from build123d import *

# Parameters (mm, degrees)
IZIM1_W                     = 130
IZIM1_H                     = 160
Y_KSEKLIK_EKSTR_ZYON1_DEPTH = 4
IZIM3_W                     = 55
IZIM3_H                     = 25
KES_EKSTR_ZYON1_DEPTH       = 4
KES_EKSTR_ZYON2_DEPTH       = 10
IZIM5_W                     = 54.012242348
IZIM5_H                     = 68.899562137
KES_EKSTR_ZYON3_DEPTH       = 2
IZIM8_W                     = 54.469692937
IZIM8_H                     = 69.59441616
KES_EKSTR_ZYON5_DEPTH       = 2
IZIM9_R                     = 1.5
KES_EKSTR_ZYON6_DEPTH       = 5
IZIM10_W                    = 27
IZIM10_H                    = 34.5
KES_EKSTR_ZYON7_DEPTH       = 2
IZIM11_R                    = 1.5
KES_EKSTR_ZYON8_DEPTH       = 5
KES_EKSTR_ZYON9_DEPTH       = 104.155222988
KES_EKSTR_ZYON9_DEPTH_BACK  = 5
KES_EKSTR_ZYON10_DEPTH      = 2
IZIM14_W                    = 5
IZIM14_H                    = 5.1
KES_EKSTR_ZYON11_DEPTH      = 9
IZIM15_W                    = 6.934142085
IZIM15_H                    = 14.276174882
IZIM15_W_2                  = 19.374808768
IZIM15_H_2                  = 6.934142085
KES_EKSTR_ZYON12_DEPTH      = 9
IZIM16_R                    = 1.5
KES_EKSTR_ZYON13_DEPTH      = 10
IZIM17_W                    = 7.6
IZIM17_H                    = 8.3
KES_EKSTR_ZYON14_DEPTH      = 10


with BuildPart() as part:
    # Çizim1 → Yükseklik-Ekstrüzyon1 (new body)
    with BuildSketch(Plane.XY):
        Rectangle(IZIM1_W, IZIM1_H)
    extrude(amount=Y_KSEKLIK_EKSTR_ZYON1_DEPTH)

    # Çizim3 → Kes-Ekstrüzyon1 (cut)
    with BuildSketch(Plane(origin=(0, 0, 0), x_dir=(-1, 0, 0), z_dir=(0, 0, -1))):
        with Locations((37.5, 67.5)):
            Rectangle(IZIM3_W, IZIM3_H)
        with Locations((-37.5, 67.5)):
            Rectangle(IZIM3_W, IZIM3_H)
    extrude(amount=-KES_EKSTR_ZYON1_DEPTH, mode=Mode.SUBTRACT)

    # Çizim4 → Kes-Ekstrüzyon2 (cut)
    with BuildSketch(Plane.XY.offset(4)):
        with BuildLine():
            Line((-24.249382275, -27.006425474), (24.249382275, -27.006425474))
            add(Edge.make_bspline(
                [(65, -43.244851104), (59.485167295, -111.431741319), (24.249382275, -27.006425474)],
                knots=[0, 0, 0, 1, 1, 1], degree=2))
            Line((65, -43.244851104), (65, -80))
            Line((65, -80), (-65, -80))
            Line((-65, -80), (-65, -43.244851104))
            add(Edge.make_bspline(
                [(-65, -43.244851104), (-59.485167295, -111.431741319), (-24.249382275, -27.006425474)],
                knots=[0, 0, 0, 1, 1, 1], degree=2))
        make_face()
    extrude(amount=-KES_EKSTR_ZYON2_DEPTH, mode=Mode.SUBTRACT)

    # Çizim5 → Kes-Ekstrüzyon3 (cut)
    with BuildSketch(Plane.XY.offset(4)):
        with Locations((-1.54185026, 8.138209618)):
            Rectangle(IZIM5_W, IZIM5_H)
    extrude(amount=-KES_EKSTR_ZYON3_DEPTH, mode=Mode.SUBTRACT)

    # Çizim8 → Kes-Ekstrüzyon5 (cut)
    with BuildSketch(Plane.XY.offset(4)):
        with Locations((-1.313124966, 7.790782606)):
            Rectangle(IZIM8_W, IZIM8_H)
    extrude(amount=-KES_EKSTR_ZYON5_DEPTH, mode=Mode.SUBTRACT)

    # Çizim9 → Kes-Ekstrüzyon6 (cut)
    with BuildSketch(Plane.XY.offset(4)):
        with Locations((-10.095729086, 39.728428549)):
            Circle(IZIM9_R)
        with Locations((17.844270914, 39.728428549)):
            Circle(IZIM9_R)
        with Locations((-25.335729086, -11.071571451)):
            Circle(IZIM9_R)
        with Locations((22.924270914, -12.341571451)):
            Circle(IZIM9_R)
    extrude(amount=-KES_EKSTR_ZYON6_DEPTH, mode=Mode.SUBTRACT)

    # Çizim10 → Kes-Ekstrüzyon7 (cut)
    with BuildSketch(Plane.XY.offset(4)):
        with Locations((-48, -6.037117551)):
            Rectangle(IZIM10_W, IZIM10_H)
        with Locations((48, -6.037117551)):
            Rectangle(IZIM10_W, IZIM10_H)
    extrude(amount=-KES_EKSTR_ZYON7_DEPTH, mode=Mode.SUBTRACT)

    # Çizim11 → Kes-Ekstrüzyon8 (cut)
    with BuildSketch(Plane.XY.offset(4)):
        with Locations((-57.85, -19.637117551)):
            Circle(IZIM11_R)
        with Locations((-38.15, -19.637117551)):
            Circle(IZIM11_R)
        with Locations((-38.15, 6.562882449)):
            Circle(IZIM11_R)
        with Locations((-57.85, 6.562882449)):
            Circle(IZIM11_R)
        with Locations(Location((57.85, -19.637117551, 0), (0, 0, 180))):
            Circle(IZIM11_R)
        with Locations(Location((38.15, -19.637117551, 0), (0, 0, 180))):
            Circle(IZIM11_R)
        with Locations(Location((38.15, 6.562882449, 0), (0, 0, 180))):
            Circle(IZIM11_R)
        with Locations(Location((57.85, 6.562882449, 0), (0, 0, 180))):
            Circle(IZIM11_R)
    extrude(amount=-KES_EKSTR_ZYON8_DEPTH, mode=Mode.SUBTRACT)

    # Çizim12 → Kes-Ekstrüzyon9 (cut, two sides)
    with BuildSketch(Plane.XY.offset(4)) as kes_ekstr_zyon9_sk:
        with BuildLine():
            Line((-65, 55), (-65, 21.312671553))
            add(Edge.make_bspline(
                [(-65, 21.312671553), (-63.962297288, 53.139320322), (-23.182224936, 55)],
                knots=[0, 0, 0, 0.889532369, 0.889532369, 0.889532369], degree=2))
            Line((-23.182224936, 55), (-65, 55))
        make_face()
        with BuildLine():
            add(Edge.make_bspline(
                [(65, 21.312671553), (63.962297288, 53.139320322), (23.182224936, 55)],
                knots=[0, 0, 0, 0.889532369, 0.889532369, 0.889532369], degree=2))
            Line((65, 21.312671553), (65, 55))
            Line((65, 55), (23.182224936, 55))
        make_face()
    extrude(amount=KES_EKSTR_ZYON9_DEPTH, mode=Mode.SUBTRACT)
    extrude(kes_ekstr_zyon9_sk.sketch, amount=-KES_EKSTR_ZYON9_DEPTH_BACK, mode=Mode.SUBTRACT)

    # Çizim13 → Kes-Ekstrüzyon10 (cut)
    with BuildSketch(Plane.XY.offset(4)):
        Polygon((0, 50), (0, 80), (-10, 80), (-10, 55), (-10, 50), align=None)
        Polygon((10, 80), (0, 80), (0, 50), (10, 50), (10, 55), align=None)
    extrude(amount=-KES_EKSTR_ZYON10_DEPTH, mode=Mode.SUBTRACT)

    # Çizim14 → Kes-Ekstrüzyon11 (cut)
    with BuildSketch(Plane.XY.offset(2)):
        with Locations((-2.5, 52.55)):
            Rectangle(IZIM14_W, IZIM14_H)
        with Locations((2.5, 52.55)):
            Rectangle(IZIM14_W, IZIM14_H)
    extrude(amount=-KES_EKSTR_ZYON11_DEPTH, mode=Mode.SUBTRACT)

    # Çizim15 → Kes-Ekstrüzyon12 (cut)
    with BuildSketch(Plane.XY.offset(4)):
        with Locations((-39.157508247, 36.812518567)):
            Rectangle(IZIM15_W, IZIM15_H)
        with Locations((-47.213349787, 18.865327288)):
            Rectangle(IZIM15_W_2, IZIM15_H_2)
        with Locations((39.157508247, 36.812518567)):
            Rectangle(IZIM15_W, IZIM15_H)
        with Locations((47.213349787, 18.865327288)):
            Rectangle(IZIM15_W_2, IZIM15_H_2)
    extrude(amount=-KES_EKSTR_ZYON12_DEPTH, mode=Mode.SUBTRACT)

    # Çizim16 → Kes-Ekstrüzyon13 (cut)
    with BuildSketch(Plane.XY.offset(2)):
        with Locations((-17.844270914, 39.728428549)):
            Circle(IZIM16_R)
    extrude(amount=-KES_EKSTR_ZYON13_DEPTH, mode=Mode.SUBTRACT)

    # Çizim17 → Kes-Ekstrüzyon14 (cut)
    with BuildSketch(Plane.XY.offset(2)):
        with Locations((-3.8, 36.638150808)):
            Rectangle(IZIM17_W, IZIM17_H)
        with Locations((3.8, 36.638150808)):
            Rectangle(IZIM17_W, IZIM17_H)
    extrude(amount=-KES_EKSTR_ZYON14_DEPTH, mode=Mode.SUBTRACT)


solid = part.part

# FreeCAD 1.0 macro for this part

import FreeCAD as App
import Part
import Sketcher
from FreeCAD import Vector


def add_polygon(sketch, points):
    """Adds a closed chain of lines whose ends are joined by coincident constraints."""
    first, n = sketch.GeometryCount, len(points)
    for a, b in zip(points, points[1:] + points[:1]):
        sketch.addGeometry(Part.LineSegment(App.Vector(*a, 0), App.Vector(*b, 0)), False)
    for i in range(n):
        sketch.addConstraint(Sketcher.Constraint("Coincident", first + i, 2, first + (i + 1) % n, 1))

doc = App.newDocument("Part")
body = doc.addObject("PartDesign::Body", "Body")

# Sketch on XY plane
sketch1 = body.newObject("Sketcher::SketchObject", "Sketch")
sketch1.AttachmentSupport = (doc.getObject("XY_Plane"), [""])
sketch1.MapMode = "FlatFace"
add_polygon(sketch1, [(-65, 80), (-65, -80), (65, -80), (65, 80)])  # lines 0-3
sketch1.addConstraint([
    Sketcher.Constraint("Vertical", 0),
    Sketcher.Constraint("Horizontal", 1),
    Sketcher.Constraint("Vertical", 2),
    Sketcher.Constraint("Horizontal", 3),
    Sketcher.Constraint("Symmetric", 0, 2, 2, 2, -1, 1),
    Sketcher.Constraint("DistanceX", 1, 1, 1, 2, 130.0),
    Sketcher.Constraint("DistanceY", 0, 2, 0, 1, 160.0),
])
pad1 = body.newObject("PartDesign::Pad", "Pad")
pad1.Profile = sketch1
pad1.Length = 4

# Sketch on XY plane
sketch2 = body.newObject("Sketcher::SketchObject", "Sketch001")
sketch2.AttachmentSupport = (doc.getObject("XY_Plane"), [""])
sketch2.MapMode = "FlatFace"
add_polygon(sketch2, [(-10, 80), (-10, 55), (-65, 55), (-65, 80)])  # lines 0-3
add_polygon(sketch2, [(65, 80), (65, 55), (10, 55), (10, 80)])  # lines 4-7
sketch2.addConstraint([
    Sketcher.Constraint("Vertical", 0),
    Sketcher.Constraint("Horizontal", 1),
    Sketcher.Constraint("Vertical", 2),
    Sketcher.Constraint("Horizontal", 3),
    Sketcher.Constraint("Vertical", 4),
    Sketcher.Constraint("Horizontal", 5),
    Sketcher.Constraint("Vertical", 6),
    Sketcher.Constraint("Horizontal", 7),
    Sketcher.Constraint("Symmetric", 1, 2, 4, 2, -2),
    Sketcher.Constraint("Symmetric", 3, 2, 6, 2, -2),
    Sketcher.Constraint("DistanceX", 1, 2, 1, 1, 55.0),
    Sketcher.Constraint("DistanceY", 0, 2, 0, 1, 25.0),
    Sketcher.Constraint("DistanceX", 0, 2, -1, 1, 10.0),
    Sketcher.Constraint("DistanceY", -1, 1, 0, 2, 55.0),
])
pocket1 = body.newObject("PartDesign::Pocket", "Pocket")
pocket1.Profile = sketch2
pocket1.Length = 4
pocket1.Reversed = True

# Sketch on XY plane
sketch3 = body.newObject("Sketcher::SketchObject", "Sketch002")
sketch3.AttachmentSupport = (doc.getObject("XY_Plane"), [""])
sketch3.MapMode = "FlatFace"
sketch3.AttachmentOffset = App.Placement(Vector(0, 0, 4), App.Rotation())
sketch3.addGeometry([
    Part.LineSegment(Vector(24.249382, -27.006425, 0), Vector(-24.249382, -27.006425, 0)),  # 0
    Part.BSplineCurve([Vector(-65, -43.244851, 0), Vector(-59.485167, -111.431741, 0), Vector(-24.249382, -27.006425, 0)], [3, 3], [0, 1], False, 2, [1, 1, 1], False),  # 1
    Part.LineSegment(Vector(-65, -43.244851, 0), Vector(-65, -80, 0)),  # 2
    Part.LineSegment(Vector(-65, -80, 0), Vector(65, -80, 0)),  # 3
    Part.LineSegment(Vector(65, -80, 0), Vector(65, -43.244851, 0)),  # 4
    Part.BSplineCurve([Vector(65, -43.244851, 0), Vector(59.485167, -111.431741, 0), Vector(24.249382, -27.006425, 0)], [3, 3], [0, 1], False, 2, [1, 1, 1], False),  # 5
], False)
sketch3.addConstraint([
    Sketcher.Constraint("Block", 1),
    Sketcher.Constraint("Block", 5),
    Sketcher.Constraint("Coincident", 0, 2, 1, 2),
    Sketcher.Constraint("Coincident", 1, 1, 2, 1),
    Sketcher.Constraint("Coincident", 2, 2, 3, 1),
    Sketcher.Constraint("Coincident", 3, 2, 4, 1),
    Sketcher.Constraint("Coincident", 4, 2, 5, 1),
    Sketcher.Constraint("Coincident", 5, 2, 0, 1),
    Sketcher.Constraint("Vertical", 2),
    Sketcher.Constraint("Horizontal", 3),
    Sketcher.Constraint("Vertical", 4),
    Sketcher.Constraint("DistanceY", 2, 2, -1, 1, 80.0),
])
pocket2 = body.newObject("PartDesign::Pocket", "Pocket001")
pocket2.Profile = sketch3
pocket2.Length = 10

# Sketch on XY plane
sketch4 = body.newObject("Sketcher::SketchObject", "Sketch003")
sketch4.AttachmentSupport = (doc.getObject("XY_Plane"), [""])
sketch4.MapMode = "FlatFace"
sketch4.AttachmentOffset = App.Placement(Vector(0, 0, 4), App.Rotation())
add_polygon(sketch4, [(-29, 43), (-29, -26), (25, -26), (25, 43)])  # lines 0-3
sketch4.addConstraint([
    Sketcher.Constraint("Vertical", 0),
    Sketcher.Constraint("Horizontal", 1),
    Sketcher.Constraint("Vertical", 2),
    Sketcher.Constraint("Horizontal", 3),
    Sketcher.Constraint("DistanceX", 1, 1, 1, 2, 54.012242),
    Sketcher.Constraint("DistanceY", 0, 2, 0, 1, 68.899562),
    Sketcher.Constraint("DistanceX", 0, 2, -1, 1, 28.547971),
    Sketcher.Constraint("DistanceY", 0, 2, -1, 1, 26.311571),
])
pocket3 = body.newObject("PartDesign::Pocket", "Pocket002")
pocket3.Profile = sketch4
pocket3.Length = 2

# Sketch on XY plane
sketch5 = body.newObject("Sketcher::SketchObject", "Sketch004")
sketch5.AttachmentSupport = (doc.getObject("XY_Plane"), [""])
sketch5.MapMode = "FlatFace"
sketch5.AttachmentOffset = App.Placement(Vector(0, 0, 4), App.Rotation())
add_polygon(sketch5, [(-29, 43), (-29, -27), (26, -27), (26, 43)])  # lines 0-3
sketch5.addConstraint([
    Sketcher.Constraint("Vertical", 0),
    Sketcher.Constraint("Horizontal", 1),
    Sketcher.Constraint("Vertical", 2),
    Sketcher.Constraint("Horizontal", 3),
    Sketcher.Constraint("DistanceX", 1, 1, 1, 2, 54.469693),
    Sketcher.Constraint("DistanceY", 0, 2, 0, 1, 69.594416),
    Sketcher.Constraint("DistanceX", 0, 2, -1, 1, 28.547971),
    Sketcher.Constraint("DistanceY", -1, 1, 2, 2, 42.587991),
])
pocket4 = body.newObject("PartDesign::Pocket", "Pocket003")
pocket4.Profile = sketch5
pocket4.Length = 2

# Sketch on XY plane
sketch6 = body.newObject("Sketcher::SketchObject", "Sketch005")
sketch6.AttachmentSupport = (doc.getObject("XY_Plane"), [""])
sketch6.MapMode = "FlatFace"
sketch6.AttachmentOffset = App.Placement(Vector(0, 0, 4), App.Rotation())
sketch6.addGeometry([
    Part.Circle(Vector(-10.1, 39.7, 0), Vector(0, 0, 1), 1.5),
    Part.Circle(Vector(17.8, 39.7, 0), Vector(0, 0, 1), 1.5),
    Part.Circle(Vector(-25.3, -11.1, 0), Vector(0, 0, 1), 1.5),
    Part.Circle(Vector(22.9, -12.3, 0), Vector(0, 0, 1), 1.5),
], False)
sketch6.addConstraint([
    Sketcher.Constraint("Equal", 0, 1),
    Sketcher.Constraint("Equal", 1, 2),
    Sketcher.Constraint("Equal", 2, 3),
    Sketcher.Constraint("Horizontal", 0, 3, 1, 3),
    Sketcher.Constraint("Diameter", 0, 3.0),
    Sketcher.Constraint("DistanceY", 2, 3, 0, 3, 50.8),
    Sketcher.Constraint("DistanceX", 0, 3, 1, 3, 27.94),
    Sketcher.Constraint("DistanceX", 2, 3, 0, 3, 15.24),
    Sketcher.Constraint("DistanceX", 2, 3, 3, 3, 48.26),
    Sketcher.Constraint("DistanceY", 3, 3, 2, 3, 1.27),
    Sketcher.Constraint("DistanceX", 0, 3, -1, 1, 10.095729),
    Sketcher.Constraint("DistanceY", -1, 1, 0, 3, 39.728429),
])
pocket5 = body.newObject("PartDesign::Pocket", "Pocket004")
pocket5.Profile = sketch6
pocket5.Length = 5

# Sketch on XY plane
sketch7 = body.newObject("Sketcher::SketchObject", "Sketch006")
sketch7.AttachmentSupport = (doc.getObject("XY_Plane"), [""])
sketch7.MapMode = "FlatFace"
sketch7.AttachmentOffset = App.Placement(Vector(0, 0, 4), App.Rotation())
add_polygon(sketch7, [(-62, 11), (-62, -23), (-34, -23), (-34, 11)])  # lines 0-3
add_polygon(sketch7, [(34, 11), (34, -23), (62, -23), (62, 11)])  # lines 4-7
sketch7.addConstraint([
    Sketcher.Constraint("Vertical", 0),
    Sketcher.Constraint("Horizontal", 1),
    Sketcher.Constraint("Vertical", 2),
    Sketcher.Constraint("Horizontal", 3),
    Sketcher.Constraint("Vertical", 4),
    Sketcher.Constraint("Horizontal", 5),
    Sketcher.Constraint("Vertical", 6),
    Sketcher.Constraint("Horizontal", 7),
    Sketcher.Constraint("Symmetric", 1, 2, 4, 2, -2),
    Sketcher.Constraint("Symmetric", 3, 2, 6, 2, -2),
    Sketcher.Constraint("DistanceX", 1, 1, 1, 2, 27.0),
    Sketcher.Constraint("DistanceY", 0, 2, 0, 1, 34.5),
    Sketcher.Constraint("DistanceX", 1, 2, 4, 2, 69.0),
    Sketcher.Constraint("DistanceY", 0, 2, -1, 1, 23.287118),
])
pocket6 = body.newObject("PartDesign::Pocket", "Pocket005")
pocket6.Profile = sketch7
pocket6.Length = 2

# Sketch on XY plane
sketch8 = body.newObject("Sketcher::SketchObject", "Sketch007")
sketch8.AttachmentSupport = (doc.getObject("XY_Plane"), [""])
sketch8.MapMode = "FlatFace"
sketch8.AttachmentOffset = App.Placement(Vector(0, 0, 4), App.Rotation())
sketch8.addGeometry([
    Part.Circle(Vector(-57.9, -19.6, 0), Vector(0, 0, 1), 1.5),  # 0
    Part.Circle(Vector(-38.1, -19.6, 0), Vector(0, 0, 1), 1.5),  # 1
    Part.Circle(Vector(-38.1, 6.6, 0), Vector(0, 0, 1), 1.5),  # 2
    Part.Circle(Vector(-57.9, 6.6, 0), Vector(0, 0, 1), 1.5),  # 3
    Part.Circle(Vector(57.9, -19.6, 0), Vector(0, 0, 1), 1.5),  # 4
    Part.Circle(Vector(38.1, -19.6, 0), Vector(0, 0, 1), 1.5),  # 5
    Part.Circle(Vector(38.1, 6.6, 0), Vector(0, 0, 1), 1.5),  # 6
    Part.Circle(Vector(57.9, 6.6, 0), Vector(0, 0, 1), 1.5),  # 7
], False)
sketch8.addConstraint([
    Sketcher.Constraint("Equal", 0, 1),
    Sketcher.Constraint("Equal", 1, 2),
    Sketcher.Constraint("Equal", 2, 3),
    Sketcher.Constraint("Equal", 3, 4),
    Sketcher.Constraint("Equal", 4, 5),
    Sketcher.Constraint("Equal", 5, 6),
    Sketcher.Constraint("Equal", 6, 7),
    Sketcher.Constraint("Symmetric", 0, 3, 4, 3, -2),
    Sketcher.Constraint("Symmetric", 1, 3, 5, 3, -2),
    Sketcher.Constraint("Symmetric", 2, 3, 6, 3, -2),
    Sketcher.Constraint("Symmetric", 3, 3, 7, 3, -2),
    Sketcher.Constraint("Horizontal", 0, 3, 1, 3),
    Sketcher.Constraint("Horizontal", 2, 3, 3, 3),
    Sketcher.Constraint("Vertical", 1, 3, 2, 3),
    Sketcher.Constraint("Vertical", 0, 3, 3, 3),
    Sketcher.Constraint("Diameter", 0, 3.0),
    Sketcher.Constraint("DistanceX", 1, 3, 4, 3, 96.0),
    Sketcher.Constraint("DistanceX", 0, 3, 1, 3, 19.7),
    Sketcher.Constraint("DistanceY", 1, 3, 2, 3, 26.2),
    Sketcher.Constraint("DistanceY", 0, 3, -1, 1, 19.637118),
])
pocket7 = body.newObject("PartDesign::Pocket", "Pocket006")
pocket7.Profile = sketch8
pocket7.Length = 5

# Sketch on XY plane
sketch9 = body.newObject("Sketcher::SketchObject", "Sketch008")
sketch9.AttachmentSupport = (doc.getObject("XY_Plane"), [""])
sketch9.MapMode = "FlatFace"
sketch9.AttachmentOffset = App.Placement(Vector(0, 0, 4), App.Rotation())
sketch9.addGeometry([
    Part.LineSegment(Vector(-65, 55, 0), Vector(-65, 21.312672, 0)),  # 0
    Part.BSplineCurve([Vector(-65, 21.312672, 0), Vector(-63.962297, 53.13932, 0), Vector(-23.182225, 55, 0)], [3, 3], [0, 0.889532369], False, 2, [1, 1, 1], False),  # 1
    Part.LineSegment(Vector(-23.182225, 55, 0), Vector(-65, 55, 0)),  # 2
    Part.BSplineCurve([Vector(65, 21.312672, 0), Vector(63.962297, 53.13932, 0), Vector(23.182225, 55, 0)], [3, 3], [0, 0.889532369], False, 2, [1, 1, 1], False),  # 3
    Part.LineSegment(Vector(65, 21.312672, 0), Vector(65, 55, 0)),  # 4
    Part.LineSegment(Vector(65, 55, 0), Vector(23.182225, 55, 0)),  # 5
], False)
sketch9.addConstraint([
    Sketcher.Constraint("Block", 1),
    Sketcher.Constraint("Block", 3),
    Sketcher.Constraint("Coincident", 0, 2, 1, 1),
    Sketcher.Constraint("Coincident", 1, 2, 2, 1),
    Sketcher.Constraint("Coincident", 2, 2, 0, 1),
    Sketcher.Constraint("Coincident", 3, 1, 4, 1),
    Sketcher.Constraint("Coincident", 4, 2, 5, 1),
    Sketcher.Constraint("Coincident", 5, 2, 3, 2),
    Sketcher.Constraint("Vertical", 0),
    Sketcher.Constraint("Horizontal", 2),
    Sketcher.Constraint("Vertical", 4),
    Sketcher.Constraint("Horizontal", 5),
])
pocket8 = body.newObject("PartDesign::Pocket", "Pocket007")
pocket8.Profile = sketch9
pocket8.Type = "ThroughAll"
pocket8.Midplane = True

# Sketch on XY plane
sketch10 = body.newObject("Sketcher::SketchObject", "Sketch009")
sketch10.AttachmentSupport = (doc.getObject("XY_Plane"), [""])
sketch10.MapMode = "FlatFace"
sketch10.AttachmentOffset = App.Placement(Vector(0, 0, 4), App.Rotation())
add_polygon(sketch10, [(-10, 80), (-10, 50), (10, 50), (10, 80)])  # lines 0-3
sketch10.addConstraint([
    Sketcher.Constraint("Vertical", 0),
    Sketcher.Constraint("Horizontal", 1),
    Sketcher.Constraint("Vertical", 2),
    Sketcher.Constraint("Horizontal", 3),
    Sketcher.Constraint("DistanceX", 1, 1, 1, 2, 20.0),
    Sketcher.Constraint("DistanceY", 0, 2, 0, 1, 30.0),
    Sketcher.Constraint("DistanceX", 0, 2, -1, 1, 10.0),
    Sketcher.Constraint("DistanceY", -1, 1, 0, 2, 50.0),
])
pocket9 = body.newObject("PartDesign::Pocket", "Pocket008")
pocket9.Profile = sketch10
pocket9.Length = 2

# Sketch on XY plane
sketch11 = body.newObject("Sketcher::SketchObject", "Sketch010")
sketch11.AttachmentSupport = (doc.getObject("XY_Plane"), [""])
sketch11.MapMode = "FlatFace"
sketch11.AttachmentOffset = App.Placement(Vector(0, 0, 2), App.Rotation())
add_polygon(sketch11, [(-5, 55), (-5, 50), (5, 50), (5, 55)])  # lines 0-3
sketch11.addConstraint([
    Sketcher.Constraint("Vertical", 0),
    Sketcher.Constraint("Horizontal", 1),
    Sketcher.Constraint("Vertical", 2),
    Sketcher.Constraint("Horizontal", 3),
    Sketcher.Constraint("DistanceX", 1, 1, 1, 2, 10.0),
    Sketcher.Constraint("DistanceY", 0, 2, 0, 1, 5.1),
    Sketcher.Constraint("DistanceX", 0, 2, -1, 1, 5.0),
    Sketcher.Constraint("DistanceY", -1, 1, 0, 2, 50.0),
])
pocket10 = body.newObject("PartDesign::Pocket", "Pocket009")
pocket10.Profile = sketch11
pocket10.Length = 9

# Sketch on XY plane
sketch12 = body.newObject("Sketcher::SketchObject", "Sketch011")
sketch12.AttachmentSupport = (doc.getObject("XY_Plane"), [""])
sketch12.MapMode = "FlatFace"
sketch12.AttachmentOffset = App.Placement(Vector(0, 0, 4), App.Rotation())
add_polygon(sketch12, [(-43, 44), (-43, 30), (-36, 30), (-36, 44)])  # lines 0-3
add_polygon(sketch12, [(-57, 22), (-57, 15), (-38, 15), (-38, 22)])  # lines 4-7
add_polygon(sketch12, [(36, 44), (36, 30), (43, 30), (43, 44)])  # lines 8-11
add_polygon(sketch12, [(38, 22), (38, 15), (57, 15), (57, 22)])  # lines 12-15
sketch12.addConstraint([
    Sketcher.Constraint("Vertical", 0),
    Sketcher.Constraint("Horizontal", 1),
    Sketcher.Constraint("Vertical", 2),
    Sketcher.Constraint("Horizontal", 3),
    Sketcher.Constraint("Vertical", 4),
    Sketcher.Constraint("Horizontal", 5),
    Sketcher.Constraint("Vertical", 6),
    Sketcher.Constraint("Horizontal", 7),
    Sketcher.Constraint("Vertical", 8),
    Sketcher.Constraint("Horizontal", 9),
    Sketcher.Constraint("Vertical", 10),
    Sketcher.Constraint("Horizontal", 11),
    Sketcher.Constraint("Vertical", 12),
    Sketcher.Constraint("Horizontal", 13),
    Sketcher.Constraint("Vertical", 14),
    Sketcher.Constraint("Horizontal", 15),
    Sketcher.Constraint("Symmetric", 1, 2, 8, 2, -2),
    Sketcher.Constraint("Symmetric", 3, 2, 10, 2, -2),
    Sketcher.Constraint("Symmetric", 5, 2, 12, 2, -2),
    Sketcher.Constraint("Symmetric", 7, 2, 14, 2, -2),
    Sketcher.Constraint("Equal", 11, 4),
    Sketcher.Constraint("DistanceX", 5, 1, 5, 2, 19.374809),
    Sketcher.Constraint("DistanceY", -1, 1, 6, 2, 22.332398),
    Sketcher.Constraint("DistanceX", 1, 1, 1, 2, 6.934142),
    Sketcher.Constraint("DistanceY", 0, 2, 0, 1, 14.276175),
    Sketcher.Constraint("DistanceX", 0, 2, -1, 1, 42.624579),
    Sketcher.Constraint("DistanceY", -1, 1, 0, 2, 29.674431),
    Sketcher.Constraint("DistanceX", 5, 2, 1, 2, 1.835508),
])
pocket11 = body.newObject("PartDesign::Pocket", "Pocket010")
pocket11.Profile = sketch12
pocket11.Length = 9

# Sketch on XY plane
sketch13 = body.newObject("Sketcher::SketchObject", "Sketch012")
sketch13.AttachmentSupport = (doc.getObject("XY_Plane"), [""])
sketch13.MapMode = "FlatFace"
sketch13.AttachmentOffset = App.Placement(Vector(0, 0, 2), App.Rotation())
sketch13.addGeometry(Part.Circle(Vector(-17.8, 39.7, 0), Vector(0, 0, 1), 1.5), False)
sketch13.addConstraint([
    Sketcher.Constraint("Diameter", 0, 3.0),
    Sketcher.Constraint("DistanceX", 0, 3, -1, 1, 17.844271),
    Sketcher.Constraint("DistanceY", -1, 1, 0, 3, 39.728429),
])
pocket12 = body.newObject("PartDesign::Pocket", "Pocket011")
pocket12.Profile = sketch13
pocket12.Length = 10

# Sketch on XY plane
sketch14 = body.newObject("Sketcher::SketchObject", "Sketch013")
sketch14.AttachmentSupport = (doc.getObject("XY_Plane"), [""])
sketch14.MapMode = "FlatFace"
sketch14.AttachmentOffset = App.Placement(Vector(0, 0, 2), App.Rotation())
add_polygon(sketch14, [(-8, 41), (-8, 32), (8, 32), (8, 41)])  # lines 0-3
sketch14.addConstraint([
    Sketcher.Constraint("Vertical", 0),
    Sketcher.Constraint("Horizontal", 1),
    Sketcher.Constraint("Vertical", 2),
    Sketcher.Constraint("Horizontal", 3),
    Sketcher.Constraint("DistanceX", 1, 1, 1, 2, 15.2),
    Sketcher.Constraint("DistanceY", 0, 2, 0, 1, 8.3),
    Sketcher.Constraint("DistanceX", 0, 2, -1, 1, 7.6),
    Sketcher.Constraint("DistanceY", -1, 1, 0, 2, 32.488151),
])
pocket13 = body.newObject("PartDesign::Pocket", "Pocket012")
pocket13.Profile = sketch14
pocket13.Length = 10

doc.recompute()
